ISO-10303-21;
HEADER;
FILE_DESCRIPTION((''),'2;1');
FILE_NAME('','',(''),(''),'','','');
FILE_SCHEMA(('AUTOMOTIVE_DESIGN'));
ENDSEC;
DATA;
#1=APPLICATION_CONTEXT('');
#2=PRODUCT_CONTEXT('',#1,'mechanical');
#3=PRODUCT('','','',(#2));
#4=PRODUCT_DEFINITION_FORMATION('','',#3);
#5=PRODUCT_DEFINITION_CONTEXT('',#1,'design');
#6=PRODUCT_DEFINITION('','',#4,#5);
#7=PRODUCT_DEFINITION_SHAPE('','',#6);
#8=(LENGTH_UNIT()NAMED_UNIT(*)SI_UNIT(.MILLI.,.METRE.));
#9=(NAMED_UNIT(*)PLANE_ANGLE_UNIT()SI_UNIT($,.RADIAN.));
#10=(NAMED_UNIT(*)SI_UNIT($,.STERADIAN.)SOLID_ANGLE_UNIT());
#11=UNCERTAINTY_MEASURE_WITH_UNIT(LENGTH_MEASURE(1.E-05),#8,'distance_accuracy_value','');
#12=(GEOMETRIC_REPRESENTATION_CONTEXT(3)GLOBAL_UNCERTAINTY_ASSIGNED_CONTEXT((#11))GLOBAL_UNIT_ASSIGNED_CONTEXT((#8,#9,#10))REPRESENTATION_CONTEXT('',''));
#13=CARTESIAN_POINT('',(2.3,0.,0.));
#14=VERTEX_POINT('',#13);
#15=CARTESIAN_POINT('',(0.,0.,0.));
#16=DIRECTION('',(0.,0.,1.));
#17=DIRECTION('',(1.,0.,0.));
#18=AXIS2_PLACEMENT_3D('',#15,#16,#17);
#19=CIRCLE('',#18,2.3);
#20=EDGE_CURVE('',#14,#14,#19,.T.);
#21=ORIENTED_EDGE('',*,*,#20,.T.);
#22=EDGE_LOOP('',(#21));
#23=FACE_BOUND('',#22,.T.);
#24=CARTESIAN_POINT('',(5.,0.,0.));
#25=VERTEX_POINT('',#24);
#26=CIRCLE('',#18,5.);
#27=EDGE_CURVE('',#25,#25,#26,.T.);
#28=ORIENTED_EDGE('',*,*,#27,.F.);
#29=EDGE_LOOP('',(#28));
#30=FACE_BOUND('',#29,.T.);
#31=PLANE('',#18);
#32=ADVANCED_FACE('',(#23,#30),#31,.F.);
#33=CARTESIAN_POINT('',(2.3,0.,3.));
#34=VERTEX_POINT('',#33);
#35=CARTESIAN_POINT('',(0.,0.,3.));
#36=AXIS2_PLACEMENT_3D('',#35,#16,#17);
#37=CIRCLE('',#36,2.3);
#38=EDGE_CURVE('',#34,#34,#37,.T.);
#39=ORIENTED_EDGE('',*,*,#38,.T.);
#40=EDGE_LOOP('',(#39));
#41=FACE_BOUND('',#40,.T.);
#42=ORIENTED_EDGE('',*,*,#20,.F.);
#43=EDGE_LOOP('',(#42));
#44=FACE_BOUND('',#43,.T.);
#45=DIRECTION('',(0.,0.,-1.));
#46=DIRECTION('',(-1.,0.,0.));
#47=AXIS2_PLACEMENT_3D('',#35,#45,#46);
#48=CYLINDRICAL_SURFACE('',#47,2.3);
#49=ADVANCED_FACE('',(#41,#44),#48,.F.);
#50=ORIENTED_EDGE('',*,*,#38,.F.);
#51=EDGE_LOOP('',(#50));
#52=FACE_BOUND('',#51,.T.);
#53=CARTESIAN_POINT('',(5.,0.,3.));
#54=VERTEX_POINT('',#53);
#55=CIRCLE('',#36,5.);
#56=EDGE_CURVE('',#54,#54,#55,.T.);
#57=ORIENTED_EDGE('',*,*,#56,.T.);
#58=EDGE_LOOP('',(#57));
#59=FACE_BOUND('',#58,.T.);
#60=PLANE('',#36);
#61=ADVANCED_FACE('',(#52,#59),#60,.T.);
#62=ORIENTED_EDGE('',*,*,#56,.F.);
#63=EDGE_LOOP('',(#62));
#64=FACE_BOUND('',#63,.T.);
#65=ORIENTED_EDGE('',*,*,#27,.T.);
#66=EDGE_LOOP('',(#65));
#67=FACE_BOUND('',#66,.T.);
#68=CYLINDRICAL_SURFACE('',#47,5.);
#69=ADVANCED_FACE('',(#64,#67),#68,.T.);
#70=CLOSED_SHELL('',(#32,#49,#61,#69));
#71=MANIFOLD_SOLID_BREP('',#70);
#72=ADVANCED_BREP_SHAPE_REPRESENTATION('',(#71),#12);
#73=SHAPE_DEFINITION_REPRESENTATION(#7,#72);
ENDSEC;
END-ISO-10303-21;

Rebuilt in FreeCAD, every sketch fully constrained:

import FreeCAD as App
import Part
import Sketcher

doc = App.newDocument("Part")
body = doc.addObject("PartDesign::Body", "Body")

# Sketch on XY plane
sketch1 = body.newObject("Sketcher::SketchObject", "Sketch")
sketch1.AttachmentSupport = (doc.getObject("XY_Plane"), [""])
sketch1.MapMode = "FlatFace"
sketch1.addGeometry([
    Part.Circle(App.Vector(0, 0, 0), App.Vector(0, 0, 1), 5),
    Part.Circle(App.Vector(0, 0, 0), App.Vector(0, 0, 1), 2.3),
], False)
sketch1.addConstraint([
    Sketcher.Constraint("Coincident", 0, 3, -1, 1),
    Sketcher.Constraint("Coincident", 1, 3, -1, 1),
    Sketcher.Constraint("Diameter", 0, 10.0),
    Sketcher.Constraint("Diameter", 1, 4.6),
])
pad1 = body.newObject("PartDesign::Pad", "Pad")
pad1.Profile = sketch1
pad1.Length = 3

doc.recompute()
